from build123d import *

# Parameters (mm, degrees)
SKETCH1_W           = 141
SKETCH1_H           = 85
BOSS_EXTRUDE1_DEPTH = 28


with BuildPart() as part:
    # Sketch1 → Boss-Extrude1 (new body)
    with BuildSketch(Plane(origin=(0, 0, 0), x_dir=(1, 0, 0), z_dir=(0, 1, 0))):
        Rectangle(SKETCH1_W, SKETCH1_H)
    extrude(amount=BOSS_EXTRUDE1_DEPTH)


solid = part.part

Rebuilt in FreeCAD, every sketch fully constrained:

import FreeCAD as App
import Part
import Sketcher


def add_polygon(sketch, points):
    """Adds a closed chain of lines whose ends are joined by coincident constraints."""
    first, n = sketch.GeometryCount, len(points)
    for a, b in zip(points, points[1:] + points[:1]):
        sketch.addGeometry(Part.LineSegment(App.Vector(*a, 0), App.Vector(*b, 0)), False)
    for i in range(n):
        sketch.addConstraint(Sketcher.Constraint("Coincident", first + i, 2, first + (i + 1) % n, 1))

doc = App.newDocument("Part")
body = doc.addObject("PartDesign::Body", "Body")

sketch1 = body.newObject("Sketcher::SketchObject", "Sketch")
sketch1.AttachmentSupport = (doc.getObject("XZ_Plane"), [""])
sketch1.MapMode = "FlatFace"
add_polygon(sketch1, [(-70, -42), (-70, 42), (70, 42), (70, -42)])
sketch1.addConstraint([
    Sketcher.Constraint("Vertical", 0),
    Sketcher.Constraint("Horizontal", 1),
    Sketcher.Constraint("Vertical", 2),
    Sketcher.Constraint("Horizontal", 3),
    Sketcher.Constraint("Symmetric", 0, 2, 2, 2, -1, 1),
    Sketcher.Constraint("DistanceX", 1, 1, 1, 2, 141.0),
    Sketcher.Constraint("DistanceY", 0, 1, 0, 2, 85.0),
])
pad1 = body.newObject("PartDesign::Pad", "Pad")
pad1.Profile = sketch1
pad1.Length = 28
pad1.Reversed = True

doc.recompute()
